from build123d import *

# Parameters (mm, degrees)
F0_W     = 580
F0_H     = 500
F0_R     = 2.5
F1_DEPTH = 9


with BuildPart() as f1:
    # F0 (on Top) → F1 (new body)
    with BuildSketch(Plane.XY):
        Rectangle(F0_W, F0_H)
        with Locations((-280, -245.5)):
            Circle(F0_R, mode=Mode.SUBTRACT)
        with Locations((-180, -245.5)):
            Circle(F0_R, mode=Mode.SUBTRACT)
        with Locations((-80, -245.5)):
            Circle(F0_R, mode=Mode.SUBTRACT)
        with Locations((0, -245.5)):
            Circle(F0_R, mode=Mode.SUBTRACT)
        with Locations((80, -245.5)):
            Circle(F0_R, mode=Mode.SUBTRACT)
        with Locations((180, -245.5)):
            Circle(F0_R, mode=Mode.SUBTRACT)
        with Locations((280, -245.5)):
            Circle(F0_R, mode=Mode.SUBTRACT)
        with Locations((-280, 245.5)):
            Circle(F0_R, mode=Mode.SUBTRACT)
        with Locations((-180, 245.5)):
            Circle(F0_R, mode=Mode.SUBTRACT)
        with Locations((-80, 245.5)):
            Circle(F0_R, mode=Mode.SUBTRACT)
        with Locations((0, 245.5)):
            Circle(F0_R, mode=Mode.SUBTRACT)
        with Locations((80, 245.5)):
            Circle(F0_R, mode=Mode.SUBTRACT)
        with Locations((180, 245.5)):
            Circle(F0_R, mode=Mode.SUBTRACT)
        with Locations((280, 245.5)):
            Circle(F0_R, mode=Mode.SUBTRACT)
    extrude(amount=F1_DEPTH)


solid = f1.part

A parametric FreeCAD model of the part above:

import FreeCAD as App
import Part
import Sketcher
from FreeCAD import Vector


def add_polygon(sketch, points):
    """Adds a closed chain of lines whose ends are joined by coincident constraints."""
    first, n = sketch.GeometryCount, len(points)
    for a, b in zip(points, points[1:] + points[:1]):
        sketch.addGeometry(Part.LineSegment(App.Vector(*a, 0), App.Vector(*b, 0)), False)
    for i in range(n):
        sketch.addConstraint(Sketcher.Constraint("Coincident", first + i, 2, first + (i + 1) % n, 1))

doc = App.newDocument("Part")
params = doc.addObject("Spreadsheet::Sheet", "Params")
for row, (alias, value) in enumerate([
    ("sketch1_diameter", "5 mm"),
    ("sketch1_width", "580 mm"),
    ("sketch1_height", "500 mm"),
    ("pad1_length", "9 mm"),
], start=1):
    params.set(f"A{row}", alias)
    params.set(f"B{row}", "=" + value)
    params.setAlias(f"B{row}", alias)

body = doc.addObject("PartDesign::Body", "Body")

# Sketch on XY plane
sketch1 = doc.addObject("Sketcher::SketchObject", "Sketch")
body.addObject(sketch1)
sketch1.AttachmentSupport = (doc.XY_Plane, [""])
sketch1.MapMode = "FlatFace"
add_polygon(sketch1, [(-290, 250), (-290, -250), (290, -250), (290, 250)])  # lines 0-3
sketch1.addGeometry(Part.Circle(Vector(-280, -245.5, 0), Vector(0, 0, 1), 2.5), False)  # 4
sketch1.addGeometry(Part.Circle(Vector(-180, -245.5, 0), Vector(0, 0, 1), 2.5), False)  # 5
sketch1.addGeometry(Part.Circle(Vector(-80, -245.5, 0), Vector(0, 0, 1), 2.5), False)  # 6
sketch1.addGeometry(Part.Circle(Vector(0, -245.5, 0), Vector(0, 0, 1), 2.5), False)  # 7
sketch1.addGeometry(Part.Circle(Vector(80, -245.5, 0), Vector(0, 0, 1), 2.5), False)  # 8
sketch1.addGeometry(Part.Circle(Vector(180, -245.5, 0), Vector(0, 0, 1), 2.5), False)  # 9
sketch1.addGeometry(Part.Circle(Vector(280, -245.5, 0), Vector(0, 0, 1), 2.5), False)  # 10
sketch1.addGeometry(Part.Circle(Vector(-280, 245.5, 0), Vector(0, 0, 1), 2.5), False)  # 11
sketch1.addGeometry(Part.Circle(Vector(-180, 245.5, 0), Vector(0, 0, 1), 2.5), False)  # 12
sketch1.addGeometry(Part.Circle(Vector(-80, 245.5, 0), Vector(0, 0, 1), 2.5), False)  # 13
sketch1.addGeometry(Part.Circle(Vector(0, 245.5, 0), Vector(0, 0, 1), 2.5), False)  # 14
sketch1.addGeometry(Part.Circle(Vector(80, 245.5, 0), Vector(0, 0, 1), 2.5), False)  # 15
sketch1.addGeometry(Part.Circle(Vector(180, 245.5, 0), Vector(0, 0, 1), 2.5), False)  # 16
sketch1.addGeometry(Part.Circle(Vector(280, 245.5, 0), Vector(0, 0, 1), 2.5), False)  # 17
sketch1.addConstraint([
    Sketcher.Constraint("Vertical", 0),
    Sketcher.Constraint("Horizontal", 1),
    Sketcher.Constraint("Vertical", 2),
    Sketcher.Constraint("Horizontal", 3),
    Sketcher.Constraint("Equal", 4, 5),
    Sketcher.Constraint("Equal", 5, 6),
    Sketcher.Constraint("Equal", 6, 7),
    Sketcher.Constraint("Equal", 7, 8),
    Sketcher.Constraint("Equal", 8, 9),
    Sketcher.Constraint("Equal", 9, 10),
    Sketcher.Constraint("Equal", 10, 11),
    Sketcher.Constraint("Equal", 11, 12),
    Sketcher.Constraint("Equal", 12, 13),
    Sketcher.Constraint("Equal", 13, 14),
    Sketcher.Constraint("Equal", 14, 15),
    Sketcher.Constraint("Equal", 15, 16),
    Sketcher.Constraint("Equal", 16, 17),
    Sketcher.Constraint("Symmetric", 10, 3, 11, 3, -1, 1),
    Sketcher.Constraint("Symmetric", 9, 3, 12, 3, -1, 1),
    Sketcher.Constraint("Symmetric", 8, 3, 13, 3, -1, 1),
    Sketcher.Constraint("Symmetric", 7, 3, 14, 3, -1, 1),
    Sketcher.Constraint("Symmetric", 6, 3, 15, 3, -1, 1),
    Sketcher.Constraint("Symmetric", 5, 3, 16, 3, -1, 1),
    Sketcher.Constraint("Symmetric", 4, 3, 17, 3, -1, 1),
    Sketcher.Constraint("Symmetric", 0, 2, 2, 2, -1, 1),
    Sketcher.Constraint("Symmetric", 6, 3, 8, 3, -2),
    Sketcher.Constraint("Symmetric", 5, 3, 9, 3, -2),
    Sketcher.Constraint("Symmetric", 4, 3, 10, 3, -2),
    Sketcher.Constraint("PointOnObject", 7, 3, -2),
    Sketcher.Constraint("Horizontal", 4, 3, 5, 3),
    Sketcher.Constraint("Horizontal", 5, 3, 6, 3),
    Sketcher.Constraint("Horizontal", 6, 3, 7, 3),
    Sketcher.Constraint("Diameter", 4, 5.0),
    Sketcher.Constraint("DistanceX", 1, 1, 1, 2, 580.0),
    Sketcher.Constraint("DistanceY", 0, 2, 0, 1, 500.0),
    Sketcher.Constraint("DistanceX", 4, 3, -1, 1, 280.0),
    Sketcher.Constraint("DistanceX", 5, 3, -1, 1, 180.0),
    Sketcher.Constraint("DistanceX", 6, 3, -1, 1, 80.0),
    Sketcher.Constraint("DistanceY", 4, 3, 11, 3, 491.0),
])
sketch1.setExpression("Constraints[36]", "Params.sketch1_diameter")
sketch1.setExpression("Constraints[37]", "Params.sketch1_width")
sketch1.setExpression("Constraints[38]", "Params.sketch1_height")
pad1 = doc.addObject("PartDesign::Pad", "Pad")
body.addObject(pad1)
pad1.Profile = sketch1
pad1.setExpression("Length", "Params.pad1_length")

doc.recompute()
